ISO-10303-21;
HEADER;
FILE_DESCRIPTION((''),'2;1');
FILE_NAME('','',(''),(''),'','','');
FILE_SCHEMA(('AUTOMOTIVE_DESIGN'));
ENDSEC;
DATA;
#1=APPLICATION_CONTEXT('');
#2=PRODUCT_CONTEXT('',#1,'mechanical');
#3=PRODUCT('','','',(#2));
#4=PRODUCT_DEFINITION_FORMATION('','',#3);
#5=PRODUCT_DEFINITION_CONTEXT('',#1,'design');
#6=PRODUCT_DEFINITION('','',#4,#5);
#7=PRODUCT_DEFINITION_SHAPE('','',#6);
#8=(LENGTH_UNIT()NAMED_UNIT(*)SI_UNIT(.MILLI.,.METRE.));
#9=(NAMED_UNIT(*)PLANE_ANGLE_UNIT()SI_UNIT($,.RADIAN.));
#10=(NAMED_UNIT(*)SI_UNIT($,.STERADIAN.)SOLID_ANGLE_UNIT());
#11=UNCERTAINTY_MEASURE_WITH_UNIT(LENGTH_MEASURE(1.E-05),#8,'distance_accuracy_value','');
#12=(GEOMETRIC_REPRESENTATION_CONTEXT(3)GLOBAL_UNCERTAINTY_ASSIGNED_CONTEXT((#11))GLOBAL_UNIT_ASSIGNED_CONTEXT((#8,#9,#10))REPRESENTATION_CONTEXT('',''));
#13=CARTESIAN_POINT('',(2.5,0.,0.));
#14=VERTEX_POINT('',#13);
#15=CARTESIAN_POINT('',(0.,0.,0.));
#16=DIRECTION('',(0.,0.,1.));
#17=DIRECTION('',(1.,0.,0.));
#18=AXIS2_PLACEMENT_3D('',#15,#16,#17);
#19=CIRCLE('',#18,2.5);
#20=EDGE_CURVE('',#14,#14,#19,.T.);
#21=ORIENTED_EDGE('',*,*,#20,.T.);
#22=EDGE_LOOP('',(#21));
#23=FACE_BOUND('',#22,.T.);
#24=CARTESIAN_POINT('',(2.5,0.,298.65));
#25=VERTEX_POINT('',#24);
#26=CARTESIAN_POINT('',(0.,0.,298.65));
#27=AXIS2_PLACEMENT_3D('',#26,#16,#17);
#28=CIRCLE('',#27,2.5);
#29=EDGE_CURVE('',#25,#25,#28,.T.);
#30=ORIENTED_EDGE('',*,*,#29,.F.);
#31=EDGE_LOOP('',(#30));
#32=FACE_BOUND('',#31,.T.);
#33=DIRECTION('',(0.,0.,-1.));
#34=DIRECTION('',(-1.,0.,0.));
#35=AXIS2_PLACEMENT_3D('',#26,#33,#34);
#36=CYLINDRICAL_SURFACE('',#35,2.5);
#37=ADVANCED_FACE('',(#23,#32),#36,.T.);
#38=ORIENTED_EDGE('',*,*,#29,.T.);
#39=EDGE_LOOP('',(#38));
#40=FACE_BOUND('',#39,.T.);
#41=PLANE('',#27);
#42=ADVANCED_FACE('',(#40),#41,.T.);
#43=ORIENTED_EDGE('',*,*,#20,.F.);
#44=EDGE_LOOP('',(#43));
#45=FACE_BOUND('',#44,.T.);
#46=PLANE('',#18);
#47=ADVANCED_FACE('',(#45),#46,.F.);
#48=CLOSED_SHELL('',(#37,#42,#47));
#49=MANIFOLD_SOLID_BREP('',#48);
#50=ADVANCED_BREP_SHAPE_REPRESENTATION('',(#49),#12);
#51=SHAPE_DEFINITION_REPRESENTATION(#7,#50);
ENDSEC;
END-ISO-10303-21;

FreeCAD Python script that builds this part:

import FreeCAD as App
import Part
import Sketcher
from FreeCAD import Vector

doc = App.newDocument("Part")
body = doc.addObject("PartDesign::Body", "Body")

# Sketch on XY plane
sketch1 = body.newObject("Sketcher::SketchObject", "Sketch")
sketch1.AttachmentSupport = (doc.getObject("XY_Plane"), [""])
sketch1.MapMode = "FlatFace"
sketch1.addGeometry(Part.Circle(Vector(0, 0, 0), Vector(0, 0, 1), 2.5), False)
sketch1.addConstraint(Sketcher.Constraint("Coincident", 0, 3, -1, 1))
sketch1.addConstraint(Sketcher.Constraint("Diameter", 0, 5.0))
pad1 = body.newObject("PartDesign::Pad", "Pad")
pad1.Profile = sketch1
pad1.Length = 298.65

doc.recompute()
